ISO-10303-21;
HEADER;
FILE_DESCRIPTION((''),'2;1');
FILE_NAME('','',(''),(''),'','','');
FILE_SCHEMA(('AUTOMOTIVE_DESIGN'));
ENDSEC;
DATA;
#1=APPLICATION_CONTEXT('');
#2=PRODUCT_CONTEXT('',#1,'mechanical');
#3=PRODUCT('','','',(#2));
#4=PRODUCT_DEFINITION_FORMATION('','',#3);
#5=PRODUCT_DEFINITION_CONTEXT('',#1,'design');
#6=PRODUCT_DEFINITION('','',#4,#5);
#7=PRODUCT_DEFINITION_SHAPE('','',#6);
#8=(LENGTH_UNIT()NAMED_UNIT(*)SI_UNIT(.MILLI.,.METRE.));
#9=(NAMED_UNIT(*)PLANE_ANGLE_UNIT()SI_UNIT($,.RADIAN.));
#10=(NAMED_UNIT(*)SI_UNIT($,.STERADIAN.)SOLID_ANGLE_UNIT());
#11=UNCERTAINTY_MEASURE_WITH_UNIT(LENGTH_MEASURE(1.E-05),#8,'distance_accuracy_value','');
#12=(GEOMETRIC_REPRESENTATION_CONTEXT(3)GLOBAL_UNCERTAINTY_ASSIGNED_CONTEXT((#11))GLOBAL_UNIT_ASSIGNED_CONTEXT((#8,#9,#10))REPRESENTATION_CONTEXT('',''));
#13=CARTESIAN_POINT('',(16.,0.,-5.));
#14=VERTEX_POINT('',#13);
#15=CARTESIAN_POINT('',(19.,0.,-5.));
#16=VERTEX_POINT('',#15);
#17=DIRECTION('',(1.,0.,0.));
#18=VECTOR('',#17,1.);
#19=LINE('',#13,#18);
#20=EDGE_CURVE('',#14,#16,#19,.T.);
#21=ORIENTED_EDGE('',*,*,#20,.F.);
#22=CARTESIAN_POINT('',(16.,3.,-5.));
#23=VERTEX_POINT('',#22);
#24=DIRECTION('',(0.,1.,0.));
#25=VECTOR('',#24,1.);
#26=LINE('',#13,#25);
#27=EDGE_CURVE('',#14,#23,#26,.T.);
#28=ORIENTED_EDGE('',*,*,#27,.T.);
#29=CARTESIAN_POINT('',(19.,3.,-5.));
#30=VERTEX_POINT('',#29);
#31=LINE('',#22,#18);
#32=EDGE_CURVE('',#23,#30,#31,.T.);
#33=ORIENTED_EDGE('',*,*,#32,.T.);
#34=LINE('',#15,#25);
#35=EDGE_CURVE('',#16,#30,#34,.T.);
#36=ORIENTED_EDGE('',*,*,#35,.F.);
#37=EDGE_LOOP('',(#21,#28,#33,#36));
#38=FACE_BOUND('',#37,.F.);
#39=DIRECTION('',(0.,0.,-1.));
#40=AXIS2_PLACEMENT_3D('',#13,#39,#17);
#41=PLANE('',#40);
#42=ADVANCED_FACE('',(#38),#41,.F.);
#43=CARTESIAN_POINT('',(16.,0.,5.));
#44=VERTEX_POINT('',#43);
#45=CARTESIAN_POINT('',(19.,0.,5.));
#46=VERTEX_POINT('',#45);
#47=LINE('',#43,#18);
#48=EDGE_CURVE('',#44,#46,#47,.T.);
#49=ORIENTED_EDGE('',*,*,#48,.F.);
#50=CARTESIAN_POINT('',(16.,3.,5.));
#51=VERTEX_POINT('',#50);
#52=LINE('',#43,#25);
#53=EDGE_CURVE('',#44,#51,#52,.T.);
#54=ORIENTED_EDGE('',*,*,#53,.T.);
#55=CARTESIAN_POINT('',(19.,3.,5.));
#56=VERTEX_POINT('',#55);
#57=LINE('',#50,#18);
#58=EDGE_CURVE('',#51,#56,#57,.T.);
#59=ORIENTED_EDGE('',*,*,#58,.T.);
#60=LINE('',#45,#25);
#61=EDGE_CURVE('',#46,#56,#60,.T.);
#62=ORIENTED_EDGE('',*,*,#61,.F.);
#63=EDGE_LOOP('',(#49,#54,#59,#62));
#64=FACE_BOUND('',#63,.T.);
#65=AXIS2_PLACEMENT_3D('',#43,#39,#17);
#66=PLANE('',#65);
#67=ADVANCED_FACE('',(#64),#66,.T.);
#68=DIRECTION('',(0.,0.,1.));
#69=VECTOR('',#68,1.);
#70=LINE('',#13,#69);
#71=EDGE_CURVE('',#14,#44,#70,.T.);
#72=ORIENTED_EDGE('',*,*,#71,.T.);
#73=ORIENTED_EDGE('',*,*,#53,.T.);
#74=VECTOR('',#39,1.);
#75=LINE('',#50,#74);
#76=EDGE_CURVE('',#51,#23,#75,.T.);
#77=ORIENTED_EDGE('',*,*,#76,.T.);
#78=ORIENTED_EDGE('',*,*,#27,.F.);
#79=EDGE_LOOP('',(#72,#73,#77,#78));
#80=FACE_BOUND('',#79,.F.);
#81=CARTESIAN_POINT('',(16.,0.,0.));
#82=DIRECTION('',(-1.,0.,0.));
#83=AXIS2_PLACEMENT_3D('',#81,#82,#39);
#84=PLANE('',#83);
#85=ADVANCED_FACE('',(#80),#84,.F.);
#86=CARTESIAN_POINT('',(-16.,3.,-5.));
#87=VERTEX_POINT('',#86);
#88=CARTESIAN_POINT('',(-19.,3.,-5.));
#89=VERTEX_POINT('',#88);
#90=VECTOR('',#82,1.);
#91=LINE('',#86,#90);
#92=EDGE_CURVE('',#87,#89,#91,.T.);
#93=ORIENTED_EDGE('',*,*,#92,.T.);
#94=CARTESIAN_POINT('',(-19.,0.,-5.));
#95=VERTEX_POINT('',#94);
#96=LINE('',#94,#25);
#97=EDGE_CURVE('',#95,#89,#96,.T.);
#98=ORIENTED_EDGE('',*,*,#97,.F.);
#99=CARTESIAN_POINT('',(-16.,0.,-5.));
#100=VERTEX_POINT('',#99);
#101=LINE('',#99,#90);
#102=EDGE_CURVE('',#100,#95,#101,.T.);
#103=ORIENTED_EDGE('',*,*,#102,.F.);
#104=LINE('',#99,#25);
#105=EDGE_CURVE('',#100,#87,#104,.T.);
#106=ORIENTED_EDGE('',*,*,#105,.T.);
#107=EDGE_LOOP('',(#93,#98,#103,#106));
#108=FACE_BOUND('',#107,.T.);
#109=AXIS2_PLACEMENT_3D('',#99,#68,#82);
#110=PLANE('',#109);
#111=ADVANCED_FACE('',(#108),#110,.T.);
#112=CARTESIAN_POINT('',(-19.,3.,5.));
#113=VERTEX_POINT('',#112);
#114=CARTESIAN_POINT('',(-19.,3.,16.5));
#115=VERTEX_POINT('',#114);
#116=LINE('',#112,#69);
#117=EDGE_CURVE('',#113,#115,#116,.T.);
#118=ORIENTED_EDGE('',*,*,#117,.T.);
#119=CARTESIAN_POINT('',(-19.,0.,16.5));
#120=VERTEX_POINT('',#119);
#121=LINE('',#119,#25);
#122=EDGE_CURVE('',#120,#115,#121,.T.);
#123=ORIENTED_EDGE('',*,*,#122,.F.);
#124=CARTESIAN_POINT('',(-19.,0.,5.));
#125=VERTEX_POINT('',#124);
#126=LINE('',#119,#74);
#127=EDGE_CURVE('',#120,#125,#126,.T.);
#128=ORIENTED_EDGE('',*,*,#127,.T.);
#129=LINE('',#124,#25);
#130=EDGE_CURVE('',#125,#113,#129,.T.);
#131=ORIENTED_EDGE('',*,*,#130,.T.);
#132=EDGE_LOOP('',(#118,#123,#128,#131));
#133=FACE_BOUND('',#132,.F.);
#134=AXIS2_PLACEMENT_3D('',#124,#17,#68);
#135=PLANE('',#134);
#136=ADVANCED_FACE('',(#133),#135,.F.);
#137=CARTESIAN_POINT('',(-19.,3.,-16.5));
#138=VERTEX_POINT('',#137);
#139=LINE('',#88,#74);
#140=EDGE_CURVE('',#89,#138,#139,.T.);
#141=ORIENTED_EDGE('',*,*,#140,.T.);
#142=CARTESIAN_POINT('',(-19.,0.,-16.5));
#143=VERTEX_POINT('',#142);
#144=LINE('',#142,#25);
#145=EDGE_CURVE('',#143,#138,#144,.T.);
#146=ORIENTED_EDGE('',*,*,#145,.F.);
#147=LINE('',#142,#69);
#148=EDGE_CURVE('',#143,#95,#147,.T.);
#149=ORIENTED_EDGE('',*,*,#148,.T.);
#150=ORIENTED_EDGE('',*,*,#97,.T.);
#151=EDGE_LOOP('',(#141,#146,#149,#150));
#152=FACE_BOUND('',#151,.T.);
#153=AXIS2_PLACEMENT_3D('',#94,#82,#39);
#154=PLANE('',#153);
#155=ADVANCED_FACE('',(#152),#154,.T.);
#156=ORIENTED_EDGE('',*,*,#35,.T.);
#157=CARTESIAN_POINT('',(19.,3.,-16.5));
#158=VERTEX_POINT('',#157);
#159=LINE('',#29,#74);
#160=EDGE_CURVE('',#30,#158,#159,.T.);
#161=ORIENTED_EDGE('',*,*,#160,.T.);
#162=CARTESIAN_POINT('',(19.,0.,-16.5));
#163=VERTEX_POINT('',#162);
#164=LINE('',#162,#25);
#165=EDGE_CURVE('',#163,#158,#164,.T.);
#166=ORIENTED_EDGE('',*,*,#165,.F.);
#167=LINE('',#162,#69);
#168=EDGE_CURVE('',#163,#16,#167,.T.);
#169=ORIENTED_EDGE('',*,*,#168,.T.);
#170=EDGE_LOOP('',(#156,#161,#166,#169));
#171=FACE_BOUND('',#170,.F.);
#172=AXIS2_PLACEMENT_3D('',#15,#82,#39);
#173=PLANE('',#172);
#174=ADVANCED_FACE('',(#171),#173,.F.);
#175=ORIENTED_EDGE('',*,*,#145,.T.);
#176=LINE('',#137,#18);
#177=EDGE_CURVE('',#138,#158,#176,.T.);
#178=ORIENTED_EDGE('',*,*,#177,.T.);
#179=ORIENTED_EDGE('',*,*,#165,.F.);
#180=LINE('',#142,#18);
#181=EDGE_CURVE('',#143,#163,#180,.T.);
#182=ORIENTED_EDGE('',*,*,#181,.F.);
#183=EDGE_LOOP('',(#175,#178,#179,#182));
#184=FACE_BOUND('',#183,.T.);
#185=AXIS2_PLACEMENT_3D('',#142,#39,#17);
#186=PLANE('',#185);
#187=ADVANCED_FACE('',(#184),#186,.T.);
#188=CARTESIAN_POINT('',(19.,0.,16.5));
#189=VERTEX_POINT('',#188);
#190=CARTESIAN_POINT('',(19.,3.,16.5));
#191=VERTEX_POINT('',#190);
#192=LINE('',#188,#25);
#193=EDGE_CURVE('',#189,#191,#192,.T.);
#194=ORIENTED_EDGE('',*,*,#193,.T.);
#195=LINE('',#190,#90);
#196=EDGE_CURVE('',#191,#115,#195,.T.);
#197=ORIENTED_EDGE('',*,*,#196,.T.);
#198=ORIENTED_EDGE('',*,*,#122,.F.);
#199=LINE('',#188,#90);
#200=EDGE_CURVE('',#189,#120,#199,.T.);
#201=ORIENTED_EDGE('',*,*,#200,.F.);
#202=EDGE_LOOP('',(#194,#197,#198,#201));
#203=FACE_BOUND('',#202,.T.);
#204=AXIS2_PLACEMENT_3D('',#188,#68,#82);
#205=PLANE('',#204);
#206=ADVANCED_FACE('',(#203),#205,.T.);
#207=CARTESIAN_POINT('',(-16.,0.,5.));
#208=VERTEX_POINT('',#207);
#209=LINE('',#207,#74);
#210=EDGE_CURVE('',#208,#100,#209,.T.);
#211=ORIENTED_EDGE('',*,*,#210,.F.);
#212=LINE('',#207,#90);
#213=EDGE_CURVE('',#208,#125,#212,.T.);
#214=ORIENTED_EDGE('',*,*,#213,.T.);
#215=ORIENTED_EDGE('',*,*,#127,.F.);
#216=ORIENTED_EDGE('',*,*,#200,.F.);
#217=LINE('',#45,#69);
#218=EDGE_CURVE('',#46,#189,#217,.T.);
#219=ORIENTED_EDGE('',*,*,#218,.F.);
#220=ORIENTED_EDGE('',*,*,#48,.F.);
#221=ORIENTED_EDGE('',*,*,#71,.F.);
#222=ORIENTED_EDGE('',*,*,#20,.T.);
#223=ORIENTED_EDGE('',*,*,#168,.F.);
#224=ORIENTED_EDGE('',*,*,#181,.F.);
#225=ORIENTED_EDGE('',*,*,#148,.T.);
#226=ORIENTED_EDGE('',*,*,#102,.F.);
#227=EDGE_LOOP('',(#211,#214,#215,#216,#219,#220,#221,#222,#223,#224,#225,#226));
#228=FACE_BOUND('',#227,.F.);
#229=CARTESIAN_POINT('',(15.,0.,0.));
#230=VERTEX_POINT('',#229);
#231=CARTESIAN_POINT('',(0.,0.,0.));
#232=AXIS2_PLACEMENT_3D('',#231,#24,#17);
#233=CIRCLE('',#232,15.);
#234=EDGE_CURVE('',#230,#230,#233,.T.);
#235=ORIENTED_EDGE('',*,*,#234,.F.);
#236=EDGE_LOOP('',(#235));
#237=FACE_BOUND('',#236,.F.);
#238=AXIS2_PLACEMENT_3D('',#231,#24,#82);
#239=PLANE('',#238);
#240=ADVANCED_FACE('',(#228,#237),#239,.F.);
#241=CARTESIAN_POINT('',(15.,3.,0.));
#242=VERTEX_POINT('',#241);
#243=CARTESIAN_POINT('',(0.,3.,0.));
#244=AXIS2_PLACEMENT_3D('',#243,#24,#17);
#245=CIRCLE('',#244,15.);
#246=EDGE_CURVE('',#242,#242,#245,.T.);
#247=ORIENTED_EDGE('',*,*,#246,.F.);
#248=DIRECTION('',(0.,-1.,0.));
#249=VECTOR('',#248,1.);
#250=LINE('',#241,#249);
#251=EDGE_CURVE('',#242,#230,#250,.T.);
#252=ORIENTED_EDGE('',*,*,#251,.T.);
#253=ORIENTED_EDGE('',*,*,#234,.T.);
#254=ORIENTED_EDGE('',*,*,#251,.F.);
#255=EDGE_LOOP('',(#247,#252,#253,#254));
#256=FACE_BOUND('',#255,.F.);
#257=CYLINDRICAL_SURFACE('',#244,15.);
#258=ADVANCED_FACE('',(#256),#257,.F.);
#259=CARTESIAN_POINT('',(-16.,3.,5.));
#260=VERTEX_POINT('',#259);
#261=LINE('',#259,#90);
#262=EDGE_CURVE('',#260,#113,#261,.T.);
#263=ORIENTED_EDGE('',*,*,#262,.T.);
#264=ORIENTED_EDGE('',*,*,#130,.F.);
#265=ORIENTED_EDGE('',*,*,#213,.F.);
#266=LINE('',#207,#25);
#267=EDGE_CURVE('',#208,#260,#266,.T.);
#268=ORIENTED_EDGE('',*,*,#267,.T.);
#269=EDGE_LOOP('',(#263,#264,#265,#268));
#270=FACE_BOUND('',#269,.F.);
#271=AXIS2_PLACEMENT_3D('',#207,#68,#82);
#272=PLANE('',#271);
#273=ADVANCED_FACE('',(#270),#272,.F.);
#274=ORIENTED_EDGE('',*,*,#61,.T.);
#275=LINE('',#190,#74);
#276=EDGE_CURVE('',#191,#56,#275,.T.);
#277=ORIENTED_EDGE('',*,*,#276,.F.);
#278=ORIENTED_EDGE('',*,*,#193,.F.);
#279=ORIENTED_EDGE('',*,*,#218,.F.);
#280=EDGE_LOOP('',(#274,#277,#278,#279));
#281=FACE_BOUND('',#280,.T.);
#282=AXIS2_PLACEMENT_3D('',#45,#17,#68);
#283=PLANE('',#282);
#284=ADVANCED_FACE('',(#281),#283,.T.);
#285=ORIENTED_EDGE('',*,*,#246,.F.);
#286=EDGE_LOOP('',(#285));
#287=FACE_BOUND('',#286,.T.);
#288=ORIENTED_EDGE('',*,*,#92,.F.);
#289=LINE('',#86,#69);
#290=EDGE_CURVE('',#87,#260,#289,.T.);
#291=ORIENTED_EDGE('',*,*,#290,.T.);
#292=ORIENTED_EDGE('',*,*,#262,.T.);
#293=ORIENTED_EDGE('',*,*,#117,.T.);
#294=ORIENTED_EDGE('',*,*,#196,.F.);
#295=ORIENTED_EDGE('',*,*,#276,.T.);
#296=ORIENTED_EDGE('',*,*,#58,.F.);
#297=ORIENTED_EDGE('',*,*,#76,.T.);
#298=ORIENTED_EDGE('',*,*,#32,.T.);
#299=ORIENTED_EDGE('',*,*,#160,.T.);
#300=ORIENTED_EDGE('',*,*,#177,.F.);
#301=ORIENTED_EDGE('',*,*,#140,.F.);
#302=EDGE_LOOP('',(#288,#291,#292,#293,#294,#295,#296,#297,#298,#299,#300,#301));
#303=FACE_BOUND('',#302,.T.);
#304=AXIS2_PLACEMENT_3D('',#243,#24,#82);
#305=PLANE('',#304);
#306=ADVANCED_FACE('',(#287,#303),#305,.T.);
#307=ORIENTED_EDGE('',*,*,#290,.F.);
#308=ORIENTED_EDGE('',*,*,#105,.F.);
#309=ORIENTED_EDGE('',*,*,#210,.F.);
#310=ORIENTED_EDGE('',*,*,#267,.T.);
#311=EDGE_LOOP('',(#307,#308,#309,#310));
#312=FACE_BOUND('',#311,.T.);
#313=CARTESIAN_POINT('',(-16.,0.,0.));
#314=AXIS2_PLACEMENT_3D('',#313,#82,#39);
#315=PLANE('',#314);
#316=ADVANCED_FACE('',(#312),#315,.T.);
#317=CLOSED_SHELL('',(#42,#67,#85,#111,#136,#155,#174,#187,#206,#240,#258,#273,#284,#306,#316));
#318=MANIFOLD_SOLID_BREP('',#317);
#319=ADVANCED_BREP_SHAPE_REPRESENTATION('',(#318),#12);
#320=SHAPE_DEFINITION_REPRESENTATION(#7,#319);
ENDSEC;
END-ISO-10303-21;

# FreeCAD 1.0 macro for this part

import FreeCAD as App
import Part
import Sketcher
from FreeCAD import Vector
Q = App.Units.Quantity

doc = App.newDocument("Part")
body = doc.addObject("PartDesign::Body", "Body")

# Sketch on XZ plane
sketch1 = body.newObject("Sketcher::SketchObject", "Sketch")
sketch1.AttachmentSupport = (doc.getObject("XZ_Plane"), [""])
sketch1.MapMode = "FlatFace"
sketch1.addGeometry([
    Part.LineSegment(Vector(-19, -15.5, 0), Vector(-19, -5, 0)),  # 0
    Part.LineSegment(Vector(-19, -5, 0), Vector(-16, -5, 0)),  # 1
    Part.LineSegment(Vector(-16, -5, 0), Vector(-16, 5, 0)),  # 2
    Part.LineSegment(Vector(-16, 5, 0), Vector(-19, 5, 0)),  # 3
    Part.LineSegment(Vector(-19, 5, 0), Vector(-19, 15.5, 0)),  # 4
    Part.LineSegment(Vector(-19, 15.5, 0), Vector(19, 15.5, 0)),  # 5
    Part.LineSegment(Vector(19, 15.5, 0), Vector(19, 5, 0)),  # 6
    Part.LineSegment(Vector(19, 5, 0), Vector(16, 5, 0)),  # 7
    Part.LineSegment(Vector(16, 5, 0), Vector(16, -5, 0)),  # 8
    Part.LineSegment(Vector(16, -5, 0), Vector(19, -5, 0)),  # 9
    Part.LineSegment(Vector(19, -5, 0), Vector(19, -15.5, 0)),  # 10
    Part.LineSegment(Vector(19, -15.5, 0), Vector(-19, -15.5, 0)),  # 11
], False)
sketch1.addConstraint([
    Sketcher.Constraint("Coincident", 0, 2, 1, 1),
    Sketcher.Constraint("Coincident", 1, 2, 2, 1),
    Sketcher.Constraint("Coincident", 2, 2, 3, 1),
    Sketcher.Constraint("Coincident", 3, 2, 4, 1),
    Sketcher.Constraint("Coincident", 4, 2, 5, 1),
    Sketcher.Constraint("Coincident", 5, 2, 6, 1),
    Sketcher.Constraint("Coincident", 6, 2, 7, 1),
    Sketcher.Constraint("Coincident", 7, 2, 8, 1),
    Sketcher.Constraint("Coincident", 8, 2, 9, 1),
    Sketcher.Constraint("Coincident", 9, 2, 10, 1),
    Sketcher.Constraint("Coincident", 10, 2, 11, 1),
    Sketcher.Constraint("Coincident", 11, 2, 0, 1),
    Sketcher.Constraint("Vertical", 0),
    Sketcher.Constraint("Horizontal", 1),
    Sketcher.Constraint("Vertical", 2),
    Sketcher.Constraint("Horizontal", 3),
    Sketcher.Constraint("Vertical", 4),
    Sketcher.Constraint("Horizontal", 5),
    Sketcher.Constraint("Vertical", 6),
    Sketcher.Constraint("Horizontal", 7),
    Sketcher.Constraint("Vertical", 8),
    Sketcher.Constraint("Horizontal", 9),
    Sketcher.Constraint("Vertical", 10),
    Sketcher.Constraint("Horizontal", 11),
    Sketcher.Constraint("Symmetric", 0, 2, 6, 2, -1, 1),
    Sketcher.Constraint("Symmetric", 2, 2, 8, 2, -1, 1),
    Sketcher.Constraint("Symmetric", 4, 2, 10, 2, -1, 1),
    Sketcher.Constraint("Symmetric", 3, 2, 6, 2, -2),
    Sketcher.Constraint("DistanceX", 0, 2, -1, 1, Q("19 mm")),
    Sketcher.Constraint("DistanceY", 0, 2, -1, 1, Q("5 mm")),
    Sketcher.Constraint("DistanceY", -1, 1, 4, 2, Q("15.5 mm")),
    Sketcher.Constraint("DistanceX", 1, 1, 1, 2, Q("3 mm")),
])
pad1 = body.newObject("PartDesign::Pad", "Pad")
pad1.Profile = sketch1
pad1.Length = 3
pad1.Reversed = True

# Sketch on XZ plane
sketch2 = body.newObject("Sketcher::SketchObject", "Sketch001")
sketch2.AttachmentSupport = (doc.getObject("XZ_Plane"), [""])
sketch2.MapMode = "FlatFace"
sketch2.AttachmentOffset = App.Placement(Vector(0, 0, -3), App.Rotation())
sketch2.addGeometry(Part.Circle(Vector(0, 0, 0), Vector(0, 0, 1), 15), False)
sketch2.addConstraint([
    Sketcher.Constraint("Coincident", 0, 3, -1, 1),
    Sketcher.Constraint("Diameter", 0, Q("30 mm")),
])
pocket1 = body.newObject("PartDesign::Pocket", "Pocket")
pocket1.Profile = sketch2
pocket1.Length = 3
pocket1.Reversed = True

# Sketch on XZ plane
sketch3 = body.newObject("Sketcher::SketchObject", "Sketch002")
sketch3.AttachmentSupport = (doc.getObject("XZ_Plane"), [""])
sketch3.MapMode = "FlatFace"
sketch3.addGeometry([
    Part.LineSegment(Vector(19, -16.5, 0), Vector(19, -15.5, 0)),  # 0
    Part.LineSegment(Vector(19, -15.5, 0), Vector(-19, -15.5, 0)),  # 1
    Part.LineSegment(Vector(-19, -15.5, 0), Vector(-19, -16.5, 0)),  # 2
    Part.LineSegment(Vector(-19, -16.5, 0), Vector(19, -16.5, 0)),  # 3
    Part.LineSegment(Vector(-19, 16.5, 0), Vector(-19, 15.5, 0)),  # 4
    Part.LineSegment(Vector(-19, 15.5, 0), Vector(19, 15.5, 0)),  # 5
    Part.LineSegment(Vector(19, 15.5, 0), Vector(19, 16.5, 0)),  # 6
    Part.LineSegment(Vector(19, 16.5, 0), Vector(-19, 16.5, 0)),  # 7
], False)
sketch3.addConstraint([
    Sketcher.Constraint("Coincident", 0, 2, 1, 1),
    Sketcher.Constraint("Coincident", 1, 2, 2, 1),
    Sketcher.Constraint("Coincident", 2, 2, 3, 1),
    Sketcher.Constraint("Coincident", 3, 2, 0, 1),
    Sketcher.Constraint("Coincident", 4, 2, 5, 1),
    Sketcher.Constraint("Coincident", 5, 2, 6, 1),
    Sketcher.Constraint("Coincident", 6, 2, 7, 1),
    Sketcher.Constraint("Coincident", 7, 2, 4, 1),
    Sketcher.Constraint("Vertical", 0),
    Sketcher.Constraint("Horizontal", 1),
    Sketcher.Constraint("Vertical", 2),
    Sketcher.Constraint("Horizontal", 3),
    Sketcher.Constraint("Vertical", 4),
    Sketcher.Constraint("Horizontal", 5),
    Sketcher.Constraint("Vertical", 6),
    Sketcher.Constraint("Horizontal", 7),
    Sketcher.Constraint("Symmetric", 0, 2, 4, 2, -1, 1),
    Sketcher.Constraint("Symmetric", 2, 2, 6, 2, -1, 1),
    Sketcher.Constraint("Vertical", 2, 2, 4, 2),
    Sketcher.Constraint("DistanceY", 0, 1, 0, 2, Q("1 mm")),
    Sketcher.Constraint("DistanceX", 1, 2, 1, 1, Q("38 mm")),
    Sketcher.Constraint("DistanceY", 1, 2, 4, 2, Q("31 mm")),
])
pad2 = body.newObject("PartDesign::Pad", "Pad001")
pad2.Profile = sketch3
pad2.Length = 3
pad2.Reversed = True

doc.recompute()
